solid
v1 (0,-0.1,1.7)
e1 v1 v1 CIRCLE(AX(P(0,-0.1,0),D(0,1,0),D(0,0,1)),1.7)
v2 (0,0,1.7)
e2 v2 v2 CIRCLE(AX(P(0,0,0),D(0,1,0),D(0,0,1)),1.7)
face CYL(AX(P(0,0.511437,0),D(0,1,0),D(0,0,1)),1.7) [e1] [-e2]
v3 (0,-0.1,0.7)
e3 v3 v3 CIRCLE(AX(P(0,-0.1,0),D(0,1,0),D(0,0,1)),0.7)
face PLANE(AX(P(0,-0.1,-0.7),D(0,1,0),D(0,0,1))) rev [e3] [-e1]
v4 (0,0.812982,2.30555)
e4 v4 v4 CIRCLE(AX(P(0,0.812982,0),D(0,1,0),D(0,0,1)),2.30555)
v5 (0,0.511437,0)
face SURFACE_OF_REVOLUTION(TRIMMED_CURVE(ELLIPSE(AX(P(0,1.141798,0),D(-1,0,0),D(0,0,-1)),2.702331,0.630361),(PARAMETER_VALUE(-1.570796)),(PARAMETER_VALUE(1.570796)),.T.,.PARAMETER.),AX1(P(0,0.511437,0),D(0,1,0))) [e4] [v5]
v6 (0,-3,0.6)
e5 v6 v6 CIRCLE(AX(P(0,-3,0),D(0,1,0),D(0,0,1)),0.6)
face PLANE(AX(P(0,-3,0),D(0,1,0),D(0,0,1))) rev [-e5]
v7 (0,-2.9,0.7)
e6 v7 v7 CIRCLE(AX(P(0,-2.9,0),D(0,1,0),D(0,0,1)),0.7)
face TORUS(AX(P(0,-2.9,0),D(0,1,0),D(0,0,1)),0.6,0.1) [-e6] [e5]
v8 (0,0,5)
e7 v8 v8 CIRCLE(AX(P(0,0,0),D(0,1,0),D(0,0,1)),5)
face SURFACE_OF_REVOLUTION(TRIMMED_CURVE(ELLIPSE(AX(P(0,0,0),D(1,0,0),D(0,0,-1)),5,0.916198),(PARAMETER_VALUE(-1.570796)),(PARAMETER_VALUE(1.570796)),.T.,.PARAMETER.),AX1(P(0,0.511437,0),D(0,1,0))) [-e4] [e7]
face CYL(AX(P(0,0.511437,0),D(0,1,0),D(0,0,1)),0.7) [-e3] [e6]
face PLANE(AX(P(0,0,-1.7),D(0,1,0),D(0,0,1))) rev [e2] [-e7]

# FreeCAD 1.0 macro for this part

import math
import FreeCAD as App
import Part
import Sketcher

V = App.Vector
Q = App.Units.Quantity

doc = App.newDocument("Part")
body = doc.addObject("PartDesign::Body", "Body")

# Sketch on YZ plane
sketch1 = doc.addObject("Sketcher::SketchObject", "Sketch")
body.addObject(sketch1)
sketch1.AttachmentSupport = (doc.YZ_Plane, [""])
sketch1.MapMode = "FlatFace"
sketch1.addGeometry([
    Part.LineSegment(V(0, -1.7, 0), V(0, -5, 0)),  # 0
    Part.BSplineCurve([V(0, -5, 0), V(0.556414, -5, 0), V(0.812982, -2.30555, 0)], [3, 3], [0, 1.09155054], False, 2, [1, 0.85472512, 1], False),  # 1
    Part.BSplineCurve([V(0.511437, 0, 0), V(0.511437, -1.515183, 0), V(0.812982, -2.30555, 0)], [3, 3], [4.71238898, 5.734423248], False, 2, [1, 0.872247515, 1], False),  # 2
    Part.LineSegment(V(0.511437, 0, 0), V(-3, 0, 0)),  # 3
    Part.LineSegment(V(-3, 0, 0), V(-3, -0.6, 0)),  # 4
    Part.ArcOfCircle(Part.Circle(V(-2.9, -0.6, 0), V(0, 0, 1), 0.1), math.radians(180), math.radians(270)),  # 5
    Part.LineSegment(V(-2.9, -0.7, 0), V(-0.1, -0.7, 0)),  # 6
    Part.LineSegment(V(-0.1, -0.7, 0), V(-0.1, -1.7, 0)),  # 7
    Part.LineSegment(V(-0.1, -1.7, 0), V(0, -1.7, 0)),  # 8
], False)
sketch1.addConstraint([
    Sketcher.Constraint("Block", 1),
    Sketcher.Constraint("Block", 2),
    Sketcher.Constraint("Coincident", 0, 2, 1, 1),
    Sketcher.Constraint("Coincident", 2, 1, 3, 1),
    Sketcher.Constraint("Coincident", 3, 2, 4, 1),
    Sketcher.Constraint("Tangent", 4, 2, 5, 1),
    Sketcher.Constraint("Tangent", 5, 2, 6, 1),
    Sketcher.Constraint("Coincident", 6, 2, 7, 1),
    Sketcher.Constraint("Coincident", 7, 2, 8, 1),
    Sketcher.Constraint("Coincident", 8, 2, 0, 1),
    Sketcher.Constraint("Vertical", 0),
    Sketcher.Constraint("Horizontal", 3),
    Sketcher.Constraint("Vertical", 4),
    Sketcher.Constraint("Horizontal", 6),
    Sketcher.Constraint("Vertical", 7),
    Sketcher.Constraint("Horizontal", 8),
    Sketcher.Constraint("Radius", 5, Q("0.1 mm")),
    Sketcher.Constraint("DistanceY", 7, 2, 7, 1, Q("1 mm")),
    Sketcher.Constraint("DistanceX", 6, 1, 6, 2, Q("2.8 mm")),
    Sketcher.Constraint("DistanceX", 8, 1, 8, 2, Q("0.1 mm")),
    Sketcher.Constraint("DistanceY", 0, 2, 0, 1, Q("3.3 mm")),
])
revolution = doc.addObject("PartDesign::Revolution", "Revolution")
body.addObject(revolution)
revolution.Profile = sketch1
revolution.ReferenceAxis = (sketch1, ["H_Axis"])
revolution.Angle = 360

doc.recompute()
